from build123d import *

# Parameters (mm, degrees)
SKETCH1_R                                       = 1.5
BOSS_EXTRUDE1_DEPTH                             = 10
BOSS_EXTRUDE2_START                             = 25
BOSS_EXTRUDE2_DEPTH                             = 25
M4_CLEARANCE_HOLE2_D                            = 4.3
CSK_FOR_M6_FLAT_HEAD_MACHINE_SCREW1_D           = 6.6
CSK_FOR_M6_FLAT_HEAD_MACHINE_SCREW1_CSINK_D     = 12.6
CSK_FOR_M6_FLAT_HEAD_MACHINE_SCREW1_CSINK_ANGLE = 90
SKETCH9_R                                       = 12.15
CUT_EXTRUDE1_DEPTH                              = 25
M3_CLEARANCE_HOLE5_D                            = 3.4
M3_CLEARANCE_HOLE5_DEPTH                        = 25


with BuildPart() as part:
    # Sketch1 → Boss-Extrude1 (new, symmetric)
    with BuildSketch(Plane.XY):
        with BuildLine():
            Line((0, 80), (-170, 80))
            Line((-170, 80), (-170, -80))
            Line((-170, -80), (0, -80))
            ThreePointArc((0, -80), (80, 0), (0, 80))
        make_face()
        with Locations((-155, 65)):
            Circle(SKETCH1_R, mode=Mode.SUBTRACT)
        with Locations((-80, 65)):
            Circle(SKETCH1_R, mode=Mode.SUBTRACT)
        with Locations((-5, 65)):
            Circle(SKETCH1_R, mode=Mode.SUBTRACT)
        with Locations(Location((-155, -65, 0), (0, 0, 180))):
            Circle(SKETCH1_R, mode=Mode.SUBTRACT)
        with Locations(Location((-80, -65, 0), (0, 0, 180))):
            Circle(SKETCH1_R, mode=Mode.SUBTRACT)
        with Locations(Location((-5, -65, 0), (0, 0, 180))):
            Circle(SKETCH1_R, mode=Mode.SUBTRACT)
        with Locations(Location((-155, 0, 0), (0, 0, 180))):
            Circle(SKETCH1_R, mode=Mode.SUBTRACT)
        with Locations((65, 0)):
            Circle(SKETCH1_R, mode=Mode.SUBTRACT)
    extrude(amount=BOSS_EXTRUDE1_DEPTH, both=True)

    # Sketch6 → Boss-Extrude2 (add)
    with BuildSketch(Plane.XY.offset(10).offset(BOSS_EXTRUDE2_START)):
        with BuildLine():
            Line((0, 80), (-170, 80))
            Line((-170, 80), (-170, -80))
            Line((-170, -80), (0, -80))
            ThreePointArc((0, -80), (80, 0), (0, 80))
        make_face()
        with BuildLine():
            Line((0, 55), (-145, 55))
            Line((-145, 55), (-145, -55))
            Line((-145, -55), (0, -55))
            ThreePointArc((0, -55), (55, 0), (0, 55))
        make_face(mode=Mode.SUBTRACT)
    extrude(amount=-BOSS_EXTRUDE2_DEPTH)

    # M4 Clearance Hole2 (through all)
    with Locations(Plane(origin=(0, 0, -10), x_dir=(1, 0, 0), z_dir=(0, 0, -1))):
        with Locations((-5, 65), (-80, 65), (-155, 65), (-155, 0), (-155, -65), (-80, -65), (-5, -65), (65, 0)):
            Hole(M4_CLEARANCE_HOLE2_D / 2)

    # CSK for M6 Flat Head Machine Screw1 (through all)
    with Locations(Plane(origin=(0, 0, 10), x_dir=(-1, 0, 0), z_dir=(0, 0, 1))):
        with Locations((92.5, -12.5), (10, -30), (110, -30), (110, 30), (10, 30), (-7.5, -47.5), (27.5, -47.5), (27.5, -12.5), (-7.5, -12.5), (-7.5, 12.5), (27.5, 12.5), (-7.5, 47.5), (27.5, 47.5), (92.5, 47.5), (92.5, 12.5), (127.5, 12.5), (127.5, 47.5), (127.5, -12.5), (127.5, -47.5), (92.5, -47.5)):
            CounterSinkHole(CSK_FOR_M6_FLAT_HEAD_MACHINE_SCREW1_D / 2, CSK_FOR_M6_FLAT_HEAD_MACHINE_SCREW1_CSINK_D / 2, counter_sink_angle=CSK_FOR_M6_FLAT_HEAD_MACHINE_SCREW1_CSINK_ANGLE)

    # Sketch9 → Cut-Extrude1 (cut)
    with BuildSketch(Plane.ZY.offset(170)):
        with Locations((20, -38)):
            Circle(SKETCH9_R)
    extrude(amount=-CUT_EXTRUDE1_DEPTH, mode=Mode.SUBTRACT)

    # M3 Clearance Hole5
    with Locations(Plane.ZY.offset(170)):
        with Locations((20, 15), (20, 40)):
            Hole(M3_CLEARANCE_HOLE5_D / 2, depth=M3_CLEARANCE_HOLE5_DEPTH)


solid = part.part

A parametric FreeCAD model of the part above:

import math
import FreeCAD as App
import Part
import Sketcher

V = App.Vector

doc = App.newDocument("Part")
params = doc.addObject("Spreadsheet::Sheet", "Params")
for row, (alias, value) in enumerate([
    ("sketch1_diameter", "3 mm"),
    ("sketch1_radius", "80 mm"),
    ("sketch1_width", "170 mm"),
    ("pad1_length", "20 mm"),
    ("sketch2_radius", "80 mm"),
    ("sketch2_radius2", "55 mm"),
    ("sketch2_width", "170 mm"),
    ("sketch2_width2", "145 mm"),
    ("pad2_length", "25 mm"),
    ("sketch3_diameter", "4.3 mm"),
    ("hole_diameter", "4.3 mm"),
    ("sketch4_diameter", "6.6 mm"),
    ("hole2_diameter", "6.6 mm"),
    ("hole2_csink_diameter", "12.6 mm"),
    ("sketch5_diameter", "24.3 mm"),
    ("pocket1_length", "25 mm"),
    ("sketch6_diameter", "3.4 mm"),
    ("hole3_diameter", "3.4 mm"),
    ("hole3_depth", "25 mm"),
], start=1):
    params.set(f"A{row}", alias)
    params.set(f"B{row}", "=" + value)
    params.setAlias(f"B{row}", alias)

body = doc.addObject("PartDesign::Body", "Body")

# Sketch on XY plane
sketch1 = body.newObject("Sketcher::SketchObject", "Sketch")
sketch1.AttachmentSupport = (doc.getObject("XY_Plane"), [""])
sketch1.MapMode = "FlatFace"
sketch1.addGeometry(Part.LineSegment(V(0, 80, 0), V(-170, 80, 0)), False)
sketch1.addGeometry(Part.LineSegment(V(-170, 80, 0), V(-170, -80, 0)), False)
sketch1.addGeometry(Part.LineSegment(V(-170, -80, 0), V(0, -80, 0)), False)
sketch1.addGeometry(Part.ArcOfCircle(Part.Circle(V(0, 0, 0), V(0, 0, 1), 80), math.radians(-90), math.radians(90)), False)
sketch1.addGeometry(Part.Circle(V(-155, -65, 0), V(0, 0, 1), 1.5), False)
sketch1.addGeometry(Part.Circle(V(-80, -65, 0), V(0, 0, 1), 1.5), False)
sketch1.addGeometry(Part.Circle(V(-5, -65, 0), V(0, 0, 1), 1.5), False)
sketch1.addGeometry(Part.Circle(V(-155, 0, 0), V(0, 0, 1), 1.5), False)
sketch1.addGeometry(Part.Circle(V(-155, 65, 0), V(0, 0, 1), 1.5), False)
sketch1.addGeometry(Part.Circle(V(-80, 65, 0), V(0, 0, 1), 1.5), False)
sketch1.addGeometry(Part.Circle(V(65, 0, 0), V(0, 0, 1), 1.5), False)
sketch1.addGeometry(Part.Circle(V(-5, 65, 0), V(0, 0, 1), 1.5), False)
sketch1.addConstraint(Sketcher.Constraint("Coincident", 0, 2, 1, 1))
sketch1.addConstraint(Sketcher.Constraint("Coincident", 1, 2, 2, 1))
sketch1.addConstraint(Sketcher.Constraint("Tangent", 2, 2, 3, 1))
sketch1.addConstraint(Sketcher.Constraint("Tangent", 3, 2, 0, 1))
sketch1.addConstraint(Sketcher.Constraint("Horizontal", 0))
sketch1.addConstraint(Sketcher.Constraint("Vertical", 1))
sketch1.addConstraint(Sketcher.Constraint("Horizontal", 2))
sketch1.addConstraint(Sketcher.Constraint("Coincident", 3, 3, -1, 1))
sketch1.addConstraint(Sketcher.Constraint("Equal", 4, 5))
sketch1.addConstraint(Sketcher.Constraint("Equal", 5, 6))
sketch1.addConstraint(Sketcher.Constraint("Equal", 6, 7))
sketch1.addConstraint(Sketcher.Constraint("Equal", 7, 8))
sketch1.addConstraint(Sketcher.Constraint("Equal", 8, 9))
sketch1.addConstraint(Sketcher.Constraint("Equal", 9, 10))
sketch1.addConstraint(Sketcher.Constraint("Equal", 10, 11))
sketch1.addConstraint(Sketcher.Constraint("Symmetric", 4, 3, 8, 3, -1))
sketch1.addConstraint(Sketcher.Constraint("Symmetric", 5, 3, 9, 3, -1))
sketch1.addConstraint(Sketcher.Constraint("Symmetric", 6, 3, 11, 3, -1))
sketch1.addConstraint(Sketcher.Constraint("PointOnObject", 7, 3, -1))
sketch1.addConstraint(Sketcher.Constraint("PointOnObject", 10, 3, -1))
sketch1.addConstraint(Sketcher.Constraint("Horizontal", 4, 3, 5, 3))
sketch1.addConstraint(Sketcher.Constraint("Horizontal", 5, 3, 6, 3))
sketch1.addConstraint(Sketcher.Constraint("Vertical", 4, 3, 7, 3))
sketch1.addConstraint(Sketcher.Constraint("Diameter", 4, 3.0))
sketch1.addConstraint(Sketcher.Constraint("Radius", 3, 80.0))
sketch1.addConstraint(Sketcher.Constraint("DistanceX", 0, 2, 0, 1, 170.0))
sketch1.addConstraint(Sketcher.Constraint("DistanceX", 4, 3, -1, 1, 155.0))
sketch1.addConstraint(Sketcher.Constraint("DistanceY", 4, 3, -1, 1, 65.0))
sketch1.addConstraint(Sketcher.Constraint("DistanceX", 5, 3, -1, 1, 80.0))
sketch1.addConstraint(Sketcher.Constraint("DistanceX", 6, 3, -1, 1, 5.0))
sketch1.addConstraint(Sketcher.Constraint("DistanceX", -1, 1, 10, 3, 65.0))
sketch1.setExpression("Constraints[23]", "Params.sketch1_diameter")
sketch1.setExpression("Constraints[24]", "Params.sketch1_radius")
sketch1.setExpression("Constraints[25]", "Params.sketch1_width")
pad1 = body.newObject("PartDesign::Pad", "Pad")
pad1.Profile = sketch1
pad1.setExpression("Length", "Params.pad1_length")
pad1.Midplane = True

# Sketch on XY plane
sketch2 = body.newObject("Sketcher::SketchObject", "Sketch001")
sketch2.AttachmentSupport = (doc.getObject("XY_Plane"), [""])
sketch2.MapMode = "FlatFace"
sketch2.AttachmentOffset = App.Placement(V(0, 0, 35), App.Rotation())
sketch2.addGeometry(Part.LineSegment(V(0, 80, 0), V(-170, 80, 0)), False)
sketch2.addGeometry(Part.LineSegment(V(-170, 80, 0), V(-170, -80, 0)), False)
sketch2.addGeometry(Part.LineSegment(V(-170, -80, 0), V(0, -80, 0)), False)
sketch2.addGeometry(Part.ArcOfCircle(Part.Circle(V(0, 0, 0), V(0, 0, 1), 80), math.radians(-90), math.radians(90)), False)
sketch2.addGeometry(Part.LineSegment(V(-145, 55, 0), V(0, 55, 0)), False)
sketch2.addGeometry(Part.ArcOfCircle(Part.Circle(V(0, 0, 0), V(0, 0, 1), 55), math.radians(-90), math.radians(90)), False)
sketch2.addGeometry(Part.LineSegment(V(0, -55, 0), V(-145, -55, 0)), False)
sketch2.addGeometry(Part.LineSegment(V(-145, -55, 0), V(-145, 55, 0)), False)
sketch2.addConstraint(Sketcher.Constraint("Coincident", 0, 2, 1, 1))
sketch2.addConstraint(Sketcher.Constraint("Coincident", 1, 2, 2, 1))
sketch2.addConstraint(Sketcher.Constraint("Tangent", 2, 2, 3, 1))
sketch2.addConstraint(Sketcher.Constraint("Tangent", 3, 2, 0, 1))
sketch2.addConstraint(Sketcher.Constraint("Tangent", 4, 2, 5, 2))
sketch2.addConstraint(Sketcher.Constraint("Tangent", 5, 1, 6, 1))
sketch2.addConstraint(Sketcher.Constraint("Coincident", 6, 2, 7, 1))
sketch2.addConstraint(Sketcher.Constraint("Coincident", 7, 2, 4, 1))
sketch2.addConstraint(Sketcher.Constraint("Horizontal", 0))
sketch2.addConstraint(Sketcher.Constraint("Vertical", 1))
sketch2.addConstraint(Sketcher.Constraint("Horizontal", 2))
sketch2.addConstraint(Sketcher.Constraint("Horizontal", 4))
sketch2.addConstraint(Sketcher.Constraint("Horizontal", 6))
sketch2.addConstraint(Sketcher.Constraint("Vertical", 7))
sketch2.addConstraint(Sketcher.Constraint("Coincident", 3, 3, -1, 1))
sketch2.addConstraint(Sketcher.Constraint("Coincident", 5, 3, -1, 1))
sketch2.addConstraint(Sketcher.Constraint("Radius", 3, 80.0))
sketch2.addConstraint(Sketcher.Constraint("Radius", 5, 55.0))
sketch2.addConstraint(Sketcher.Constraint("DistanceX", 0, 2, 0, 1, 170.0))
sketch2.addConstraint(Sketcher.Constraint("DistanceX", 4, 1, 4, 2, 145.0))
sketch2.setExpression("Constraints[16]", "Params.sketch2_radius")
sketch2.setExpression("Constraints[17]", "Params.sketch2_radius2")
sketch2.setExpression("Constraints[18]", "Params.sketch2_width")
sketch2.setExpression("Constraints[19]", "Params.sketch2_width2")
pad2 = body.newObject("PartDesign::Pad", "Pad001")
pad2.Profile = sketch2
pad2.setExpression("Length", "Params.pad2_length")
pad2.Reversed = True

# Sketch on XY plane
sketch3 = body.newObject("Sketcher::SketchObject", "Sketch002")
sketch3.AttachmentSupport = (doc.getObject("XY_Plane"), [""])
sketch3.MapMode = "FlatFace"
sketch3.AttachmentOffset = App.Placement(V(0, 0, -10), App.Rotation())
sketch3.addGeometry(Part.Circle(V(-5, -65, 0), V(0, 0, 1), 2.1), False)
sketch3.addGeometry(Part.Circle(V(-80, -65, 0), V(0, 0, 1), 2.1), False)
sketch3.addGeometry(Part.Circle(V(-155, -65, 0), V(0, 0, 1), 2.1), False)
sketch3.addGeometry(Part.Circle(V(-155, 0, 0), V(0, 0, 1), 2.1), False)
sketch3.addGeometry(Part.Circle(V(-155, 65, 0), V(0, 0, 1), 2.1), False)
sketch3.addGeometry(Part.Circle(V(-80, 65, 0), V(0, 0, 1), 2.1), False)
sketch3.addGeometry(Part.Circle(V(-5, 65, 0), V(0, 0, 1), 2.1), False)
sketch3.addGeometry(Part.Circle(V(65, 0, 0), V(0, 0, 1), 2.1), False)
sketch3.addConstraint(Sketcher.Constraint("Equal", 0, 1))
sketch3.addConstraint(Sketcher.Constraint("Equal", 1, 2))
sketch3.addConstraint(Sketcher.Constraint("Equal", 2, 3))
sketch3.addConstraint(Sketcher.Constraint("Equal", 3, 4))
sketch3.addConstraint(Sketcher.Constraint("Equal", 4, 5))
sketch3.addConstraint(Sketcher.Constraint("Equal", 5, 6))
sketch3.addConstraint(Sketcher.Constraint("Equal", 6, 7))
sketch3.addConstraint(Sketcher.Constraint("Symmetric", 2, 3, 4, 3, -1))
sketch3.addConstraint(Sketcher.Constraint("Symmetric", 1, 3, 5, 3, -1))
sketch3.addConstraint(Sketcher.Constraint("Symmetric", 0, 3, 6, 3, -1))
sketch3.addConstraint(Sketcher.Constraint("PointOnObject", 3, 3, -1))
sketch3.addConstraint(Sketcher.Constraint("PointOnObject", 7, 3, -1))
sketch3.addConstraint(Sketcher.Constraint("Horizontal", 0, 3, 1, 3))
sketch3.addConstraint(Sketcher.Constraint("Horizontal", 1, 3, 2, 3))
sketch3.addConstraint(Sketcher.Constraint("Vertical", 2, 3, 3, 3))
sketch3.addConstraint(Sketcher.Constraint("Diameter", 0, 4.3))
sketch3.addConstraint(Sketcher.Constraint("DistanceX", 0, 3, -1, 1, 5.0))
sketch3.addConstraint(Sketcher.Constraint("DistanceY", 0, 3, -1, 1, 65.0))
sketch3.addConstraint(Sketcher.Constraint("DistanceX", 1, 3, -1, 1, 80.0))
sketch3.addConstraint(Sketcher.Constraint("DistanceX", 2, 3, -1, 1, 155.0))
sketch3.addConstraint(Sketcher.Constraint("DistanceX", -1, 1, 7, 3, 65.0))
sketch3.setExpression("Constraints[15]", "Params.sketch3_diameter")
doc.recompute()
hole = body.newObject("PartDesign::Hole", "Hole")
hole.Profile = sketch3
hole.ThreadType = "None"
hole.setExpression("Diameter", "Params.hole_diameter")
hole.DepthType = "ThroughAll"
hole.Reversed = True

# Sketch on XY plane
sketch4 = body.newObject("Sketcher::SketchObject", "Sketch003")
sketch4.AttachmentSupport = (doc.getObject("XY_Plane"), [""])
sketch4.MapMode = "FlatFace"
sketch4.AttachmentOffset = App.Placement(V(0, 0, 10), App.Rotation())
sketch4.addGeometry(Part.Circle(V(-92.5, 12.5, 0), V(0, 0, 1), 3.3), False)
sketch4.addGeometry(Part.Circle(V(-10, 30, 0), V(0, 0, 1), 3.3), False)
sketch4.addGeometry(Part.Circle(V(-110, 30, 0), V(0, 0, 1), 3.3), False)
sketch4.addGeometry(Part.Circle(V(-110, -30, 0), V(0, 0, 1), 3.3), False)
sketch4.addGeometry(Part.Circle(V(-10, -30, 0), V(0, 0, 1), 3.3), False)
sketch4.addGeometry(Part.Circle(V(7.5, 47.5, 0), V(0, 0, 1), 3.3), False)
sketch4.addGeometry(Part.Circle(V(-27.5, 47.5, 0), V(0, 0, 1), 3.3), False)
sketch4.addGeometry(Part.Circle(V(-27.5, 12.5, 0), V(0, 0, 1), 3.3), False)
sketch4.addGeometry(Part.Circle(V(7.5, 12.5, 0), V(0, 0, 1), 3.3), False)
sketch4.addGeometry(Part.Circle(V(7.5, -12.5, 0), V(0, 0, 1), 3.3), False)
sketch4.addGeometry(Part.Circle(V(-27.5, -12.5, 0), V(0, 0, 1), 3.3), False)
sketch4.addGeometry(Part.Circle(V(7.5, -47.5, 0), V(0, 0, 1), 3.3), False)
sketch4.addGeometry(Part.Circle(V(-27.5, -47.5, 0), V(0, 0, 1), 3.3), False)
sketch4.addGeometry(Part.Circle(V(-92.5, -47.5, 0), V(0, 0, 1), 3.3), False)
sketch4.addGeometry(Part.Circle(V(-92.5, -12.5, 0), V(0, 0, 1), 3.3), False)
sketch4.addGeometry(Part.Circle(V(-127.5, -12.5, 0), V(0, 0, 1), 3.3), False)
sketch4.addGeometry(Part.Circle(V(-127.5, -47.5, 0), V(0, 0, 1), 3.3), False)
sketch4.addGeometry(Part.Circle(V(-127.5, 12.5, 0), V(0, 0, 1), 3.3), False)
sketch4.addGeometry(Part.Circle(V(-127.5, 47.5, 0), V(0, 0, 1), 3.3), False)
sketch4.addGeometry(Part.Circle(V(-92.5, 47.5, 0), V(0, 0, 1), 3.3), False)
sketch4.addConstraint(Sketcher.Constraint("Equal", 0, 1))
sketch4.addConstraint(Sketcher.Constraint("Equal", 1, 2))
sketch4.addConstraint(Sketcher.Constraint("Equal", 2, 3))
sketch4.addConstraint(Sketcher.Constraint("Equal", 3, 4))
sketch4.addConstraint(Sketcher.Constraint("Equal", 4, 5))
sketch4.addConstraint(Sketcher.Constraint("Equal", 5, 6))
sketch4.addConstraint(Sketcher.Constraint("Equal", 6, 7))
sketch4.addConstraint(Sketcher.Constraint("Equal", 7, 8))
sketch4.addConstraint(Sketcher.Constraint("Equal", 8, 9))
sketch4.addConstraint(Sketcher.Constraint("Equal", 9, 10))
sketch4.addConstraint(Sketcher.Constraint("Equal", 10, 11))
sketch4.addConstraint(Sketcher.Constraint("Equal", 11, 12))
sketch4.addConstraint(Sketcher.Constraint("Equal", 12, 13))
sketch4.addConstraint(Sketcher.Constraint("Equal", 13, 14))
sketch4.addConstraint(Sketcher.Constraint("Equal", 14, 15))
sketch4.addConstraint(Sketcher.Constraint("Equal", 15, 16))
sketch4.addConstraint(Sketcher.Constraint("Equal", 16, 17))
sketch4.addConstraint(Sketcher.Constraint("Equal", 17, 18))
sketch4.addConstraint(Sketcher.Constraint("Equal", 18, 19))
sketch4.addConstraint(Sketcher.Constraint("Symmetric", 2, 3, 3, 3, -1))
sketch4.addConstraint(Sketcher.Constraint("Symmetric", 1, 3, 4, 3, -1))
sketch4.addConstraint(Sketcher.Constraint("Symmetric", 8, 3, 9, 3, -1))
sketch4.addConstraint(Sketcher.Constraint("Symmetric", 7, 3, 10, 3, -1))
sketch4.addConstraint(Sketcher.Constraint("Symmetric", 5, 3, 11, 3, -1))
sketch4.addConstraint(Sketcher.Constraint("Symmetric", 6, 3, 12, 3, -1))
sketch4.addConstraint(Sketcher.Constraint("Symmetric", 0, 3, 14, 3, -1))
sketch4.addConstraint(Sketcher.Constraint("Symmetric", 15, 3, 17, 3, -1))
sketch4.addConstraint(Sketcher.Constraint("Symmetric", 16, 3, 18, 3, -1))
sketch4.addConstraint(Sketcher.Constraint("Symmetric", 13, 3, 19, 3, -1))
sketch4.addConstraint(Sketcher.Constraint("Horizontal", 1, 3, 2, 3))
sketch4.addConstraint(Sketcher.Constraint("Horizontal", 5, 3, 6, 3))
sketch4.addConstraint(Sketcher.Constraint("Horizontal", 0, 3, 7, 3))
sketch4.addConstraint(Sketcher.Constraint("Horizontal", 7, 3, 8, 3))
sketch4.addConstraint(Sketcher.Constraint("Horizontal", 12, 3, 13, 3))
sketch4.addConstraint(Sketcher.Constraint("Horizontal", 14, 3, 15, 3))
sketch4.addConstraint(Sketcher.Constraint("Horizontal", 13, 3, 16, 3))
sketch4.addConstraint(Sketcher.Constraint("Vertical", 6, 3, 7, 3))
sketch4.addConstraint(Sketcher.Constraint("Vertical", 5, 3, 8, 3))
sketch4.addConstraint(Sketcher.Constraint("Vertical", 0, 3, 13, 3))
sketch4.addConstraint(Sketcher.Constraint("Vertical", 15, 3, 16, 3))
sketch4.addConstraint(Sketcher.Constraint("Diameter", 0, 6.6))
sketch4.addConstraint(Sketcher.Constraint("DistanceX", 1, 3, -1, 1, 10.0))
sketch4.addConstraint(Sketcher.Constraint("DistanceY", -1, 1, 1, 3, 30.0))
sketch4.addConstraint(Sketcher.Constraint("DistanceX", 2, 3, -1, 1, 110.0))
sketch4.addConstraint(Sketcher.Constraint("DistanceX", 0, 3, 5, 3, 100.0))
sketch4.addConstraint(Sketcher.Constraint("DistanceY", 0, 3, 5, 3, 35.0))
sketch4.addConstraint(Sketcher.Constraint("DistanceX", 6, 3, 5, 3, 35.0))
sketch4.addConstraint(Sketcher.Constraint("DistanceY", 9, 3, 8, 3, 25.0))
sketch4.addConstraint(Sketcher.Constraint("DistanceX", 15, 3, 14, 3, 35.0))
sketch4.addConstraint(Sketcher.Constraint("DistanceX", 0, 3, -1, 1, 92.5))
sketch4.setExpression("Constraints[40]", "Params.sketch4_diameter")
doc.recompute()
hole2 = body.newObject("PartDesign::Hole", "Hole001")
hole2.Profile = sketch4
hole2.ThreadType = "None"
hole2.setExpression("Diameter", "Params.hole2_diameter")
hole2.DepthType = "ThroughAll"
hole2.HoleCutType = "Countersink"
hole2.setExpression("HoleCutDiameter", "Params.hole2_csink_diameter")
hole2.HoleCutCountersinkAngle = 90

# Sketch on YZ plane
sketch5 = body.newObject("Sketcher::SketchObject", "Sketch004")
sketch5.AttachmentSupport = (doc.getObject("YZ_Plane"), [""])
sketch5.MapMode = "FlatFace"
sketch5.AttachmentOffset = App.Placement(V(0, 0, -170), App.Rotation())
sketch5.addGeometry(Part.Circle(V(-38, 20, 0), V(0, 0, 1), 12), False)
sketch5.addConstraint(Sketcher.Constraint("Diameter", 0, 24.3))
sketch5.addConstraint(Sketcher.Constraint("DistanceX", 0, 3, -1, 1, 38.0))
sketch5.addConstraint(Sketcher.Constraint("DistanceY", -1, 1, 0, 3, 20.0))
sketch5.setExpression("Constraints[0]", "Params.sketch5_diameter")
pocket1 = body.newObject("PartDesign::Pocket", "Pocket")
pocket1.Profile = sketch5
pocket1.setExpression("Length", "Params.pocket1_length")
pocket1.Reversed = True

# Sketch on YZ plane
sketch6 = body.newObject("Sketcher::SketchObject", "Sketch005")
sketch6.AttachmentSupport = (doc.getObject("YZ_Plane"), [""])
sketch6.MapMode = "FlatFace"
sketch6.AttachmentOffset = App.Placement(V(0, 0, -170), App.Rotation())
sketch6.addGeometry(Part.Circle(V(15, 20, 0), V(0, 0, 1), 1.7), False)
sketch6.addGeometry(Part.Circle(V(40, 20, 0), V(0, 0, 1), 1.7), False)
sketch6.addConstraint(Sketcher.Constraint("Equal", 0, 1))
sketch6.addConstraint(Sketcher.Constraint("Horizontal", 0, 3, 1, 3))
sketch6.addConstraint(Sketcher.Constraint("Diameter", 0, 3.4))
sketch6.addConstraint(Sketcher.Constraint("DistanceX", -1, 1, 0, 3, 15.0))
sketch6.addConstraint(Sketcher.Constraint("DistanceY", -1, 1, 0, 3, 20.0))
sketch6.addConstraint(Sketcher.Constraint("DistanceX", -1, 1, 1, 3, 40.0))
sketch6.setExpression("Constraints[2]", "Params.sketch6_diameter")
doc.recompute()
hole3 = body.newObject("PartDesign::Hole", "Hole002")
hole3.Profile = sketch6
hole3.ThreadType = "None"
hole3.setExpression("Diameter", "Params.hole3_diameter")
hole3.DepthType = "Dimension"
hole3.setExpression("Depth", "Params.hole3_depth")
hole3.DrillPoint = "Flat"
hole3.Reversed = True

doc.recompute()
